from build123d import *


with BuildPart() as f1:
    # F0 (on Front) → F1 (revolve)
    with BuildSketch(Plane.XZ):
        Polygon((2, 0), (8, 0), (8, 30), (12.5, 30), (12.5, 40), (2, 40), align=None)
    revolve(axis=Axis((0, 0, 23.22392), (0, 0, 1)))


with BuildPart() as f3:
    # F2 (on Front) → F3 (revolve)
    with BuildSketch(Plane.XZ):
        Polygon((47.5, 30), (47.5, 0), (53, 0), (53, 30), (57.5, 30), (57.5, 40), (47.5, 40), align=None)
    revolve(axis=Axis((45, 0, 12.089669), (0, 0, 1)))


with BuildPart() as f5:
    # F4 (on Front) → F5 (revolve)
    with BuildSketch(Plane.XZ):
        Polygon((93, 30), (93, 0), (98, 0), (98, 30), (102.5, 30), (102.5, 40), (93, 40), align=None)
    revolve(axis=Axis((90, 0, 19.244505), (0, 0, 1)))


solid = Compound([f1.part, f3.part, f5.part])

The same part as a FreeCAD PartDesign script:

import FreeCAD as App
import Part
import Sketcher
from FreeCAD import Vector

doc = App.newDocument("Part")
body = doc.addObject("PartDesign::Body", "Body")

# Sketch on XZ plane
sketch1 = body.newObject("Sketcher::SketchObject", "Sketch")
sketch1.AttachmentSupport = (doc.getObject("XZ_Plane"), [""])
sketch1.MapMode = "FlatFace"
sketch1.addGeometry(Part.LineSegment(Vector(2, 0, 0), Vector(8, 0, 0)), False)
sketch1.addGeometry(Part.LineSegment(Vector(8, 0, 0), Vector(8, 30, 0)), False)
sketch1.addGeometry(Part.LineSegment(Vector(8, 30, 0), Vector(12.5, 30, 0)), False)
sketch1.addGeometry(Part.LineSegment(Vector(12.5, 30, 0), Vector(12.5, 40, 0)), False)
sketch1.addGeometry(Part.LineSegment(Vector(12.5, 40, 0), Vector(2, 40, 0)), False)
sketch1.addGeometry(Part.LineSegment(Vector(2, 40, 0), Vector(2, 0, 0)), False)
sketch1.addConstraint(Sketcher.Constraint("Coincident", 0, 2, 1, 1))
sketch1.addConstraint(Sketcher.Constraint("Coincident", 1, 2, 2, 1))
sketch1.addConstraint(Sketcher.Constraint("Coincident", 2, 2, 3, 1))
sketch1.addConstraint(Sketcher.Constraint("Coincident", 3, 2, 4, 1))
sketch1.addConstraint(Sketcher.Constraint("Coincident", 4, 2, 5, 1))
sketch1.addConstraint(Sketcher.Constraint("Coincident", 5, 2, 0, 1))
sketch1.addConstraint(Sketcher.Constraint("Horizontal", 0))
sketch1.addConstraint(Sketcher.Constraint("Vertical", 1))
sketch1.addConstraint(Sketcher.Constraint("Horizontal", 2))
sketch1.addConstraint(Sketcher.Constraint("Vertical", 3))
sketch1.addConstraint(Sketcher.Constraint("Horizontal", 4))
sketch1.addConstraint(Sketcher.Constraint("Vertical", 5))
sketch1.addConstraint(Sketcher.Constraint("PointOnObject", 0, 2, -1))
sketch1.addConstraint(Sketcher.Constraint("DistanceX", 0, 1, 0, 2, 6.0))
sketch1.addConstraint(Sketcher.Constraint("DistanceY", 1, 1, 1, 2, 30.0))
sketch1.addConstraint(Sketcher.Constraint("DistanceY", 3, 1, 3, 2, 10.0))
sketch1.addConstraint(Sketcher.Constraint("DistanceX", 2, 1, 2, 2, 4.5))
sketch1.addConstraint(Sketcher.Constraint("DistanceX", -1, 1, 0, 2, 8.0))
revolution = body.newObject("PartDesign::Revolution", "Revolution")
revolution.Profile = sketch1
revolution.ReferenceAxis = (sketch1, ["V_Axis"])
revolution.Angle = 360
body2 = doc.addObject("PartDesign::Body", "Body001")

# Sketch on XZ plane
sketch2 = body2.newObject("Sketcher::SketchObject", "Sketch001")
sketch2.AttachmentSupport = (doc.getObject("XZ_Plane001"), [""])
sketch2.MapMode = "FlatFace"
sketch2.addGeometry(Part.LineSegment(Vector(47.5, 0, 0), Vector(53, 0, 0)), False)
sketch2.addGeometry(Part.LineSegment(Vector(53, 0, 0), Vector(53, 30, 0)), False)
sketch2.addGeometry(Part.LineSegment(Vector(53, 30, 0), Vector(57.5, 30, 0)), False)
sketch2.addGeometry(Part.LineSegment(Vector(57.5, 30, 0), Vector(57.5, 40, 0)), False)
sketch2.addGeometry(Part.LineSegment(Vector(57.5, 40, 0), Vector(47.5, 40, 0)), False)
sketch2.addGeometry(Part.LineSegment(Vector(47.5, 40, 0), Vector(47.5, 0, 0)), False)
sketch2.addGeometry(Part.LineSegment(Vector(45, 0, 0), Vector(45, 40, 0)), True)  # axis
sketch2.addConstraint(Sketcher.Constraint("Coincident", 0, 2, 1, 1))
sketch2.addConstraint(Sketcher.Constraint("Coincident", 1, 2, 2, 1))
sketch2.addConstraint(Sketcher.Constraint("Coincident", 2, 2, 3, 1))
sketch2.addConstraint(Sketcher.Constraint("Coincident", 3, 2, 4, 1))
sketch2.addConstraint(Sketcher.Constraint("Coincident", 4, 2, 5, 1))
sketch2.addConstraint(Sketcher.Constraint("Coincident", 5, 2, 0, 1))
sketch2.addConstraint(Sketcher.Constraint("Horizontal", 0))
sketch2.addConstraint(Sketcher.Constraint("Vertical", 1))
sketch2.addConstraint(Sketcher.Constraint("Horizontal", 2))
sketch2.addConstraint(Sketcher.Constraint("Vertical", 3))
sketch2.addConstraint(Sketcher.Constraint("Horizontal", 4))
sketch2.addConstraint(Sketcher.Constraint("Vertical", 5))
sketch2.addConstraint(Sketcher.Constraint("Vertical", 6))
sketch2.addConstraint(Sketcher.Constraint("PointOnObject", 0, 2, -1))
sketch2.addConstraint(Sketcher.Constraint("PointOnObject", 6, 1, -1))
sketch2.addConstraint(Sketcher.Constraint("Horizontal", 4, 2, 6, 2))
sketch2.addConstraint(Sketcher.Constraint("Equal", 4, 3))
sketch2.addConstraint(Sketcher.Constraint("DistanceX", 4, 2, 4, 1, 10.0))
sketch2.addConstraint(Sketcher.Constraint("DistanceY", 1, 1, 1, 2, 30.0))
sketch2.addConstraint(Sketcher.Constraint("DistanceX", 0, 1, 0, 2, 5.5))
sketch2.addConstraint(Sketcher.Constraint("DistanceX", -1, 1, 0, 2, 53.0))
sketch2.addConstraint(Sketcher.Constraint("DistanceX", -1, 1, 6, 1, 45.0))
revolution2 = body2.newObject("PartDesign::Revolution", "Revolution001")
revolution2.Profile = sketch2
revolution2.ReferenceAxis = (sketch2, ["Axis0"])
revolution2.Angle = 360
body3 = doc.addObject("PartDesign::Body", "Body002")

# Sketch on XZ plane
sketch3 = body3.newObject("Sketcher::SketchObject", "Sketch002")
sketch3.AttachmentSupport = (doc.getObject("XZ_Plane002"), [""])
sketch3.MapMode = "FlatFace"
sketch3.addGeometry(Part.LineSegment(Vector(93, 0, 0), Vector(98, 0, 0)), False)
sketch3.addGeometry(Part.LineSegment(Vector(98, 0, 0), Vector(98, 30, 0)), False)
sketch3.addGeometry(Part.LineSegment(Vector(98, 30, 0), Vector(102.5, 30, 0)), False)
sketch3.addGeometry(Part.LineSegment(Vector(102.5, 30, 0), Vector(102.5, 40, 0)), False)
sketch3.addGeometry(Part.LineSegment(Vector(102.5, 40, 0), Vector(93, 40, 0)), False)
sketch3.addGeometry(Part.LineSegment(Vector(93, 40, 0), Vector(93, 0, 0)), False)
sketch3.addGeometry(Part.LineSegment(Vector(90, 0, 0), Vector(90, 40, 0)), True)  # axis
sketch3.addConstraint(Sketcher.Constraint("Coincident", 0, 2, 1, 1))
sketch3.addConstraint(Sketcher.Constraint("Coincident", 1, 2, 2, 1))
sketch3.addConstraint(Sketcher.Constraint("Coincident", 2, 2, 3, 1))
sketch3.addConstraint(Sketcher.Constraint("Coincident", 3, 2, 4, 1))
sketch3.addConstraint(Sketcher.Constraint("Coincident", 4, 2, 5, 1))
sketch3.addConstraint(Sketcher.Constraint("Coincident", 5, 2, 0, 1))
sketch3.addConstraint(Sketcher.Constraint("Horizontal", 0))
sketch3.addConstraint(Sketcher.Constraint("Vertical", 1))
sketch3.addConstraint(Sketcher.Constraint("Horizontal", 2))
sketch3.addConstraint(Sketcher.Constraint("Vertical", 3))
sketch3.addConstraint(Sketcher.Constraint("Horizontal", 4))
sketch3.addConstraint(Sketcher.Constraint("Vertical", 5))
sketch3.addConstraint(Sketcher.Constraint("Vertical", 6))
sketch3.addConstraint(Sketcher.Constraint("PointOnObject", 0, 2, -1))
sketch3.addConstraint(Sketcher.Constraint("PointOnObject", 6, 1, -1))
sketch3.addConstraint(Sketcher.Constraint("Horizontal", 4, 2, 6, 2))
sketch3.addConstraint(Sketcher.Constraint("DistanceX", 0, 1, 0, 2, 5.0))
sketch3.addConstraint(Sketcher.Constraint("DistanceY", 1, 1, 1, 2, 30.0))
sketch3.addConstraint(Sketcher.Constraint("DistanceY", 3, 1, 3, 2, 10.0))
sketch3.addConstraint(Sketcher.Constraint("DistanceX", 2, 1, 2, 2, 4.5))
sketch3.addConstraint(Sketcher.Constraint("DistanceX", -1, 1, 0, 2, 98.0))
sketch3.addConstraint(Sketcher.Constraint("DistanceX", -1, 1, 6, 1, 90.0))
revolution3 = body3.newObject("PartDesign::Revolution", "Revolution002")
revolution3.Profile = sketch3
revolution3.ReferenceAxis = (sketch3, ["Axis0"])
revolution3.Angle = 360

doc.recompute()
